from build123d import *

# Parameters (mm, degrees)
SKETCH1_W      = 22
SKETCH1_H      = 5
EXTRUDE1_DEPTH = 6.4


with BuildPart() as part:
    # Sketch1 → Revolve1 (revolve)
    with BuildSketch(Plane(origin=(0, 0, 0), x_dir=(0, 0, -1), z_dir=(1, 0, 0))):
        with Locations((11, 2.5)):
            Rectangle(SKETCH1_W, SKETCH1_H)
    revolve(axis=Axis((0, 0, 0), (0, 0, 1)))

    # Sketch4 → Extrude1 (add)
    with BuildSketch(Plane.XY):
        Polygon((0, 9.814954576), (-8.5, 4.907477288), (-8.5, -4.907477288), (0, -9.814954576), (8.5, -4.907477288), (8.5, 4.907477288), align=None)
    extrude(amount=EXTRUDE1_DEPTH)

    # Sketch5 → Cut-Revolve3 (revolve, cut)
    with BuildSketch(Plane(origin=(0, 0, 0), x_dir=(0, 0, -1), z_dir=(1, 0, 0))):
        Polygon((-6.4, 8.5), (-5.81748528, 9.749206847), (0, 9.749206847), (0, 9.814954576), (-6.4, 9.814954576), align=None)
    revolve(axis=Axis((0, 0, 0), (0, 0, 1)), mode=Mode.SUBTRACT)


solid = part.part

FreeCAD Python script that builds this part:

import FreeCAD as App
import Part
import Sketcher
from FreeCAD import Vector
Q = App.Units.Quantity

doc = App.newDocument("Part")
params = doc.addObject("Spreadsheet::Sheet", "Params")
for row, (alias, value) in enumerate([
    ("sketch1_width", "5 mm"),
    ("sketch1_height", "22 mm"),
    ("revolution_angle", "360 deg"),
    ("pad1_length", "6.4 mm"),
    ("sketch3_height", "6.4 mm"),
    ("groove_angle", "360 deg"),
], start=1):
    params.set(f"A{row}", alias)
    params.set(f"B{row}", "=" + value)
    params.setAlias(f"B{row}", alias)

body = doc.addObject("PartDesign::Body", "Body")

sketch1 = doc.addObject("Sketcher::SketchObject", "Sketch")
body.addObject(sketch1)
sketch1.AttachmentSupport = (doc.YZ_Plane, [""])
sketch1.MapMode = "FlatFace"
sketch1.addGeometry([
    Part.LineSegment(Vector(5, 0, 0), Vector(0, 0, 0)),
    Part.LineSegment(Vector(0, 0, 0), Vector(0, -22, 0)),
    Part.LineSegment(Vector(0, -22, 0), Vector(5, -22, 0)),
    Part.LineSegment(Vector(5, -22, 0), Vector(5, 0, 0)),
], False)
sketch1.addConstraint([
    Sketcher.Constraint("Coincident", 0, 2, 1, 1),
    Sketcher.Constraint("Coincident", 1, 2, 2, 1),
    Sketcher.Constraint("Coincident", 2, 2, 3, 1),
    Sketcher.Constraint("Coincident", 3, 2, 0, 1),
    Sketcher.Constraint("Horizontal", 0),
    Sketcher.Constraint("Vertical", 1),
    Sketcher.Constraint("Horizontal", 2),
    Sketcher.Constraint("Vertical", 3),
    Sketcher.Constraint("Coincident", 0, 2, -1, 1),
    Sketcher.Constraint("DistanceX", 0, 2, 0, 1, 5.0),
    Sketcher.Constraint("DistanceY", 1, 2, 1, 1, 22.0),
])
sketch1.setExpression("Constraints[9]", "Params.sketch1_width")
sketch1.setExpression("Constraints[10]", "Params.sketch1_height")
revolution = doc.addObject("PartDesign::Revolution", "Revolution")
body.addObject(revolution)
revolution.Profile = sketch1
revolution.ReferenceAxis = (sketch1, ["V_Axis"])
revolution.setExpression("Angle", "Params.revolution_angle")

sketch2 = doc.addObject("Sketcher::SketchObject", "Sketch001")
body.addObject(sketch2)
sketch2.AttachmentSupport = (doc.XY_Plane, [""])
sketch2.MapMode = "FlatFace"
sketch2.addGeometry([
    Part.LineSegment(Vector(0, 9.814955, 0), Vector(-8.5, 4.907477, 0)),
    Part.LineSegment(Vector(-8.5, 4.907477, 0), Vector(-8.5, -4.907477, 0)),
    Part.LineSegment(Vector(-8.5, -4.907477, 0), Vector(0, -9.814955, 0)),
    Part.LineSegment(Vector(0, -9.814955, 0), Vector(8.5, -4.907477, 0)),
    Part.LineSegment(Vector(8.5, -4.907477, 0), Vector(8.5, 4.907477, 0)),
    Part.LineSegment(Vector(8.5, 4.907477, 0), Vector(0, 9.814955, 0)),
], False)
sketch2.addConstraint([
    Sketcher.Constraint("Coincident", 0, 2, 1, 1),
    Sketcher.Constraint("Coincident", 1, 2, 2, 1),
    Sketcher.Constraint("Coincident", 2, 2, 3, 1),
    Sketcher.Constraint("Coincident", 3, 2, 4, 1),
    Sketcher.Constraint("Coincident", 4, 2, 5, 1),
    Sketcher.Constraint("Coincident", 5, 2, 0, 1),
    Sketcher.Constraint("Vertical", 1),
    Sketcher.Constraint("Vertical", 4),
    Sketcher.Constraint("Symmetric", 0, 2, 3, 2, -1, 1),
    Sketcher.Constraint("Symmetric", 2, 2, 5, 2, -1, 1),
    Sketcher.Constraint("PointOnObject", 2, 2, -2),
    Sketcher.Constraint("Parallel", 2, 5),
    Sketcher.Constraint("Horizontal", 1, 2, 3, 2),
    Sketcher.Constraint("Angle", 0, Q("-150 deg")),
    Sketcher.Constraint("DistanceX", 1, 2, 3, 2, 17.0),
    Sketcher.Constraint("DistanceY", 1, 2, 1, 1, 9.814955),
])
pad1 = doc.addObject("PartDesign::Pad", "Pad")
body.addObject(pad1)
pad1.Profile = sketch2
pad1.setExpression("Length", "Params.pad1_length")

sketch3 = doc.addObject("Sketcher::SketchObject", "Sketch002")
body.addObject(sketch3)
sketch3.AttachmentSupport = (doc.YZ_Plane, [""])
sketch3.MapMode = "FlatFace"
sketch3.addGeometry([
    Part.LineSegment(Vector(8.5, 6.4, 0), Vector(9.749207, 5.817485, 0)),
    Part.LineSegment(Vector(9.749207, 5.817485, 0), Vector(9.749207, 0, 0)),
    Part.LineSegment(Vector(9.749207, 0, 0), Vector(9.814955, 0, 0)),
    Part.LineSegment(Vector(9.814955, 0, 0), Vector(9.814955, 6.4, 0)),
    Part.LineSegment(Vector(9.814955, 6.4, 0), Vector(8.5, 6.4, 0)),
], False)
sketch3.addConstraint([
    Sketcher.Constraint("Coincident", 0, 2, 1, 1),
    Sketcher.Constraint("Coincident", 1, 2, 2, 1),
    Sketcher.Constraint("Coincident", 2, 2, 3, 1),
    Sketcher.Constraint("Coincident", 3, 2, 4, 1),
    Sketcher.Constraint("Coincident", 4, 2, 0, 1),
    Sketcher.Constraint("Vertical", 1),
    Sketcher.Constraint("Horizontal", 2),
    Sketcher.Constraint("Vertical", 3),
    Sketcher.Constraint("Horizontal", 4),
    Sketcher.Constraint("PointOnObject", 1, 2, -1),
    Sketcher.Constraint("Angle", 0, Q("-25 deg")),
    Sketcher.Constraint("DistanceY", 3, 1, 3, 2, 6.4),
    Sketcher.Constraint("DistanceX", -1, 1, 4, 2, 8.5),
    Sketcher.Constraint("DistanceX", 2, 1, 2, 2, 0.065748),
    Sketcher.Constraint("DistanceX", 4, 2, 4, 1, 1.314955),
])
sketch3.setExpression("Constraints[11]", "Params.sketch3_height")
groove = doc.addObject("PartDesign::Groove", "Groove")
body.addObject(groove)
groove.Profile = sketch3
groove.ReferenceAxis = (sketch3, ["V_Axis"])
groove.setExpression("Angle", "Params.groove_angle")

doc.recompute()
